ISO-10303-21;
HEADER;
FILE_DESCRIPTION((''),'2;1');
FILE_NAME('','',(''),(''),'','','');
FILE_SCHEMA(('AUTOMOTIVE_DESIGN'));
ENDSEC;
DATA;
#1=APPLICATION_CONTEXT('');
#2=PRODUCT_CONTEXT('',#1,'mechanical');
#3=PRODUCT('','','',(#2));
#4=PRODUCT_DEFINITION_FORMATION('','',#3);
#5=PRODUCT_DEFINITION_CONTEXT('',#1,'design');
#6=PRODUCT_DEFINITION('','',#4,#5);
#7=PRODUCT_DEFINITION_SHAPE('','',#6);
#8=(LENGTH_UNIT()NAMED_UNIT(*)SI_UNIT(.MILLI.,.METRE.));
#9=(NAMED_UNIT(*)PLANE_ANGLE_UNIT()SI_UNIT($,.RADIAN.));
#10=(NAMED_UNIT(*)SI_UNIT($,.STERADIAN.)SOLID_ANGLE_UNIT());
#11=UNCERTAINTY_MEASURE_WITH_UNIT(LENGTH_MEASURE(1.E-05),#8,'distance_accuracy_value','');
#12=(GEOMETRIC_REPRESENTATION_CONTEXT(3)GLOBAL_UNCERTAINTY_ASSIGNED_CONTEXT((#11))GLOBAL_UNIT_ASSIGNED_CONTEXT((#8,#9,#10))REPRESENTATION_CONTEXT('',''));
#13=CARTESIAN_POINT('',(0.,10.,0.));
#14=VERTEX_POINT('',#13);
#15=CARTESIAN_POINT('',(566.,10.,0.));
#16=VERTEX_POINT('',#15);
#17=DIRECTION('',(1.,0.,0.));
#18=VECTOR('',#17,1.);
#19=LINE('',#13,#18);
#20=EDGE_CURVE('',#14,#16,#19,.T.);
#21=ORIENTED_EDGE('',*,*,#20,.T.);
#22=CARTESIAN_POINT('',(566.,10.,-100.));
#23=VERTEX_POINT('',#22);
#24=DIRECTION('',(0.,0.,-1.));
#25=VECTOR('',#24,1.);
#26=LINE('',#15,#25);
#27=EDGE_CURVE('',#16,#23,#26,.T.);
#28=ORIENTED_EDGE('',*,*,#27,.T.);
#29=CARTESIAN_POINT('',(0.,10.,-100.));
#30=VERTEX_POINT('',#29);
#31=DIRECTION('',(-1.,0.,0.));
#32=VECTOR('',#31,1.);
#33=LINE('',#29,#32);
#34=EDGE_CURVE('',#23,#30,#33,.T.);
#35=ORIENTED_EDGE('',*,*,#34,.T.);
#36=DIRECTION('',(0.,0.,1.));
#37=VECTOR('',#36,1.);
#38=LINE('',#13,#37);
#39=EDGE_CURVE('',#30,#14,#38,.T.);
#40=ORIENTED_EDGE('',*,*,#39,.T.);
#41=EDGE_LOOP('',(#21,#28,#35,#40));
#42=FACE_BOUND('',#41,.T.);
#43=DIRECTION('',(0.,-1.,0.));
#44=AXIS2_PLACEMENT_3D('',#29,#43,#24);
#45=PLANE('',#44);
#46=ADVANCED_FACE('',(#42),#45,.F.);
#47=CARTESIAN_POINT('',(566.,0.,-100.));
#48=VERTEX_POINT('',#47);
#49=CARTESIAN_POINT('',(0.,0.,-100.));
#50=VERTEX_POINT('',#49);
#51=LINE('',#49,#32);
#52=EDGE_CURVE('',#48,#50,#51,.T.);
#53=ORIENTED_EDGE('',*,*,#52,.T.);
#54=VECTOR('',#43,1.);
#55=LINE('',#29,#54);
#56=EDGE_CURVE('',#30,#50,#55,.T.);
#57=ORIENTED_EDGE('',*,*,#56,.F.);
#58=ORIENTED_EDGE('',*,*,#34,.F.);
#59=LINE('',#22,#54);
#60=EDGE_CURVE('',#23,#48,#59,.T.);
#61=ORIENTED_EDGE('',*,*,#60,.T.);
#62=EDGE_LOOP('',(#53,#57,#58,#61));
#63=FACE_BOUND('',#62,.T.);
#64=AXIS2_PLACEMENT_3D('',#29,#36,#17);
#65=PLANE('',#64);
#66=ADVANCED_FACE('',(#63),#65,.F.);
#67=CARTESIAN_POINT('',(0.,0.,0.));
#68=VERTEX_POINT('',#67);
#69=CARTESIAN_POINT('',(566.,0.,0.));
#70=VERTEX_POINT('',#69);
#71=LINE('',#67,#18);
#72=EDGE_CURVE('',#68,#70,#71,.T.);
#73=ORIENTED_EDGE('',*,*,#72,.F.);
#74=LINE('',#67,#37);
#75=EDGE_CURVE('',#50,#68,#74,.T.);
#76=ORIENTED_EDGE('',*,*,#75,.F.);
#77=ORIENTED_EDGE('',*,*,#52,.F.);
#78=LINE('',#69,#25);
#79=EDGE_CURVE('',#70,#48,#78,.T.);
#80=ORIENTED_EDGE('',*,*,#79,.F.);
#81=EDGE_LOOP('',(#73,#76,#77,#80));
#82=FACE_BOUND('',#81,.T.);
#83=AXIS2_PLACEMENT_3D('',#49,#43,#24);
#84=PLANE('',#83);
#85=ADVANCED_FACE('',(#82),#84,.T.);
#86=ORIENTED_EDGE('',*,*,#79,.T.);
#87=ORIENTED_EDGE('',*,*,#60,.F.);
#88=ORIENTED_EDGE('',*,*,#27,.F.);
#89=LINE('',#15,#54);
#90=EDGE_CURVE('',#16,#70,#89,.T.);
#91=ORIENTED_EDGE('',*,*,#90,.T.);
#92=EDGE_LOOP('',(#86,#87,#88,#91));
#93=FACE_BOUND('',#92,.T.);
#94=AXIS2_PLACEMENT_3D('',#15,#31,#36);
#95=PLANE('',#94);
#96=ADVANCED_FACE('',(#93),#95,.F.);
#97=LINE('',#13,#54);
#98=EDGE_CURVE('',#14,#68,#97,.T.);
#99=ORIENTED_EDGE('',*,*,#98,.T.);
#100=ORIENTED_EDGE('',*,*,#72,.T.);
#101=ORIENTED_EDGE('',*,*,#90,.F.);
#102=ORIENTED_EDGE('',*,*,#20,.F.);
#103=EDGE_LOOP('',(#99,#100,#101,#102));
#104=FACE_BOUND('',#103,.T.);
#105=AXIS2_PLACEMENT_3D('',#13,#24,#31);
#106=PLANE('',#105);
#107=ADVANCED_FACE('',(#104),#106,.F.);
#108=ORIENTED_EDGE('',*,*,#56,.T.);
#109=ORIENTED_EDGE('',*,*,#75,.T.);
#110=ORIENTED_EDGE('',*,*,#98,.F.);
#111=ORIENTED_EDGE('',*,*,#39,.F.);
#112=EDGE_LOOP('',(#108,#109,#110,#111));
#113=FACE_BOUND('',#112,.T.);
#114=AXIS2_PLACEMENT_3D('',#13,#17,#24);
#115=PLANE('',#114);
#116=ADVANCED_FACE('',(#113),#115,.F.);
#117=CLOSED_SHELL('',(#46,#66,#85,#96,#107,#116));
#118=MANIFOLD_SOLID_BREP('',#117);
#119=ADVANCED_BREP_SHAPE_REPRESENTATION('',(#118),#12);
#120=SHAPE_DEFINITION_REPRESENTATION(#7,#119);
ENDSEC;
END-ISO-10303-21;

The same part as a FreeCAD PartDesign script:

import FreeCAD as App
import Part
import Sketcher
from FreeCAD import Vector
Q = App.Units.Quantity

doc = App.newDocument("Part")
body = doc.addObject("PartDesign::Body", "Body")

# Sketch on XZ plane
sketch1 = body.newObject("Sketcher::SketchObject", "Sketch")
sketch1.AttachmentSupport = (doc.getObject("XZ_Plane"), [""])
sketch1.MapMode = "FlatFace"
sketch1.addGeometry(Part.LineSegment(Vector(0, -100, 0), Vector(0, 0, 0)), False)
sketch1.addGeometry(Part.LineSegment(Vector(0, 0, 0), Vector(566, 0, 0)), False)
sketch1.addGeometry(Part.LineSegment(Vector(566, 0, 0), Vector(566, -100, 0)), False)
sketch1.addGeometry(Part.LineSegment(Vector(566, -100, 0), Vector(0, -100, 0)), False)
sketch1.addConstraint(Sketcher.Constraint("Coincident", 0, 2, 1, 1))
sketch1.addConstraint(Sketcher.Constraint("Coincident", 1, 2, 2, 1))
sketch1.addConstraint(Sketcher.Constraint("Coincident", 2, 2, 3, 1))
sketch1.addConstraint(Sketcher.Constraint("Coincident", 3, 2, 0, 1))
sketch1.addConstraint(Sketcher.Constraint("Vertical", 0))
sketch1.addConstraint(Sketcher.Constraint("Horizontal", 1))
sketch1.addConstraint(Sketcher.Constraint("Vertical", 2))
sketch1.addConstraint(Sketcher.Constraint("Horizontal", 3))
sketch1.addConstraint(Sketcher.Constraint("Coincident", 0, 2, -1, 1))
sketch1.addConstraint(Sketcher.Constraint("DistanceX", 1, 1, 1, 2, Q("566 mm")))
sketch1.addConstraint(Sketcher.Constraint("DistanceY", 0, 1, 0, 2, Q("100 mm")))
pad1 = body.newObject("PartDesign::Pad", "Pad")
pad1.Profile = sketch1
pad1.Length = 10
pad1.Reversed = True

doc.recompute()
